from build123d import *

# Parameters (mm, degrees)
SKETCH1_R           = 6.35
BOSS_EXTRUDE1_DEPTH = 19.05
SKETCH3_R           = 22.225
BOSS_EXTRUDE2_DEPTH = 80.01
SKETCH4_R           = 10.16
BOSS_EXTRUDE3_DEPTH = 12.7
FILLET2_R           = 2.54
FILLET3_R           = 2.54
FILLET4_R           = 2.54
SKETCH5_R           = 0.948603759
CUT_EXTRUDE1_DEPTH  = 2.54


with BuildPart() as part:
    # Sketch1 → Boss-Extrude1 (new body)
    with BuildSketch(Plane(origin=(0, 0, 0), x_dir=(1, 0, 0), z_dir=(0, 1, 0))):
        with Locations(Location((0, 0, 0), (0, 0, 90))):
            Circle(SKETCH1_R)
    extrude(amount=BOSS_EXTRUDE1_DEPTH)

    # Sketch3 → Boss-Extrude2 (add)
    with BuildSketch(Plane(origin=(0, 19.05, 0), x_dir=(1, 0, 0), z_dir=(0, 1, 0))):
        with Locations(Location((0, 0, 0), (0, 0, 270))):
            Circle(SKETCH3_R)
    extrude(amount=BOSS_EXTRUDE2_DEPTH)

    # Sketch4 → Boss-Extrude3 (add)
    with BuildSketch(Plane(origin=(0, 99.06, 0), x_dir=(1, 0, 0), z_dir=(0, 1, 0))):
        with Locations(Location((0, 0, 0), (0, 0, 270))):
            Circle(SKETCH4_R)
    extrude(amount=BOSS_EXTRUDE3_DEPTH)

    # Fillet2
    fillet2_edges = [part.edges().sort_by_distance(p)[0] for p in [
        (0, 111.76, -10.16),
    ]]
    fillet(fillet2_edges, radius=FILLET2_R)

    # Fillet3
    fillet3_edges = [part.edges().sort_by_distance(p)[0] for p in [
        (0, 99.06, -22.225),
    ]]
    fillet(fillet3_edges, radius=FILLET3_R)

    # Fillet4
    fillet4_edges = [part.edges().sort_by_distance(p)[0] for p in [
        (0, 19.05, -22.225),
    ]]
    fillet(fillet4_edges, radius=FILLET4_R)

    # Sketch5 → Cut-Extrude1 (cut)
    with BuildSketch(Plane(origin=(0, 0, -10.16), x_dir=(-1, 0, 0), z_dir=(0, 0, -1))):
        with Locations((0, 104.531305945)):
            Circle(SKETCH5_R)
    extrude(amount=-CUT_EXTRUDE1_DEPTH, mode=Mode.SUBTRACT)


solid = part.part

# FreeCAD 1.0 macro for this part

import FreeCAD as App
import Part
import Sketcher

V = App.Vector
Q = App.Units.Quantity


def edges_at(feature, points):
    """Names of the edges that pass closest to the given points."""
    edges = feature.Shape.Edges
    near = lambda p: min(range(len(edges)), key=lambda i: edges[i].distToShape(Part.Vertex(*p))[0])
    return sorted({f"Edge{near(p) + 1}" for p in points})

doc = App.newDocument("Part")
params = doc.addObject("Spreadsheet::Sheet", "Params")
for row, (alias, value) in enumerate([
    ("sketch1_diameter", "0.5 in"),
    ("pad1_length", "0.75 in"),
    ("sketch2_diameter", "1.75 in"),
    ("pad2_length", "3.15 in"),
    ("sketch3_diameter", "0.8 in"),
    ("pad3_length", "0.5 in"),
    ("fillet_radius", "0.1 in"),
    ("fillet2_radius", "0.1 in"),
    ("fillet3_radius", "0.1 in"),
    ("pocket1_length", "0.1 in"),
], start=1):
    params.set(f"A{row}", alias)
    params.set(f"B{row}", "=" + value)
    params.setAlias(f"B{row}", alias)

body = doc.addObject("PartDesign::Body", "Body")

# Sketch on XZ plane
sketch1 = body.newObject("Sketcher::SketchObject", "Sketch")
sketch1.AttachmentSupport = (doc.getObject("XZ_Plane"), [""])
sketch1.MapMode = "FlatFace"
sketch1.addGeometry(Part.Circle(V(0, 0, 0), V(0, 0, 1), 6), False)
sketch1.addConstraint([
    Sketcher.Constraint("Coincident", 0, 3, -1, 1),
    Sketcher.Constraint("Diameter", 0, Q("0.5 in")),
])
sketch1.setExpression("Constraints[1]", "Params.sketch1_diameter")
pad1 = body.newObject("PartDesign::Pad", "Pad")
pad1.Profile = sketch1
pad1.setExpression("Length", "Params.pad1_length")
pad1.Reversed = True

# Sketch on XZ plane
sketch2 = body.newObject("Sketcher::SketchObject", "Sketch001")
sketch2.AttachmentSupport = (doc.getObject("XZ_Plane"), [""])
sketch2.MapMode = "FlatFace"
sketch2.AttachmentOffset = App.Placement(V(0, 0, -0.75 * 25.4), App.Rotation())
sketch2.addGeometry(Part.Circle(V(0, 0, 0), V(0, 0, 1), 22), False)
sketch2.addConstraint([
    Sketcher.Constraint("Coincident", 0, 3, -1, 1),
    Sketcher.Constraint("Diameter", 0, Q("1.75 in")),
])
sketch2.setExpression("Constraints[1]", "Params.sketch2_diameter")
pad2 = body.newObject("PartDesign::Pad", "Pad001")
pad2.Profile = sketch2
pad2.setExpression("Length", "Params.pad2_length")
pad2.Reversed = True

# Sketch on XZ plane
sketch3 = body.newObject("Sketcher::SketchObject", "Sketch002")
sketch3.AttachmentSupport = (doc.getObject("XZ_Plane"), [""])
sketch3.MapMode = "FlatFace"
sketch3.AttachmentOffset = App.Placement(V(0, 0, -3.9 * 25.4), App.Rotation())
sketch3.addGeometry(Part.Circle(V(0, 0, 0), V(0, 0, 1), 10), False)
sketch3.addConstraint([
    Sketcher.Constraint("Coincident", 0, 3, -1, 1),
    Sketcher.Constraint("Diameter", 0, Q("0.8 in")),
])
sketch3.setExpression("Constraints[1]", "Params.sketch3_diameter")
pad3 = body.newObject("PartDesign::Pad", "Pad002")
pad3.Profile = sketch3
pad3.setExpression("Length", "Params.pad3_length")
pad3.Reversed = True
doc.recompute()

fillet = body.newObject("PartDesign::Fillet", "Fillet")
fillet.Base = (pad3, edges_at(pad3, [(0, 111.76, -10.16)]))
fillet.setExpression("Radius", "Params.fillet_radius")
doc.recompute()

fillet2 = body.newObject("PartDesign::Fillet", "Fillet001")
fillet2.Base = (fillet, edges_at(fillet, [(0, 99.06, -22.225)]))
fillet2.setExpression("Radius", "Params.fillet2_radius")
doc.recompute()

fillet3 = body.newObject("PartDesign::Fillet", "Fillet002")
fillet3.Base = (fillet2, edges_at(fillet2, [(0, 19.05, -22.225)]))
fillet3.setExpression("Radius", "Params.fillet3_radius")

# Sketch on XY plane
sketch4 = body.newObject("Sketcher::SketchObject", "Sketch003")
sketch4.AttachmentSupport = (doc.getObject("XY_Plane"), [""])
sketch4.MapMode = "FlatFace"
sketch4.AttachmentOffset = App.Placement(V(0, 0, -0.4 * 25.4), App.Rotation())
sketch4.addGeometry(Part.Circle(V(0, 104.5, 0), V(0, 0, 1), 0.9), False)
sketch4.addConstraint([
    Sketcher.Constraint("PointOnObject", 0, 3, -2),
    Sketcher.Constraint("Diameter", 0, Q("1.897208 mm")),
    Sketcher.Constraint("DistanceY", -1, 1, 0, 3, Q("104.531306 mm")),
])
pocket1 = body.newObject("PartDesign::Pocket", "Pocket")
pocket1.Profile = sketch4
pocket1.setExpression("Length", "Params.pocket1_length")
pocket1.Reversed = True

doc.recompute()
